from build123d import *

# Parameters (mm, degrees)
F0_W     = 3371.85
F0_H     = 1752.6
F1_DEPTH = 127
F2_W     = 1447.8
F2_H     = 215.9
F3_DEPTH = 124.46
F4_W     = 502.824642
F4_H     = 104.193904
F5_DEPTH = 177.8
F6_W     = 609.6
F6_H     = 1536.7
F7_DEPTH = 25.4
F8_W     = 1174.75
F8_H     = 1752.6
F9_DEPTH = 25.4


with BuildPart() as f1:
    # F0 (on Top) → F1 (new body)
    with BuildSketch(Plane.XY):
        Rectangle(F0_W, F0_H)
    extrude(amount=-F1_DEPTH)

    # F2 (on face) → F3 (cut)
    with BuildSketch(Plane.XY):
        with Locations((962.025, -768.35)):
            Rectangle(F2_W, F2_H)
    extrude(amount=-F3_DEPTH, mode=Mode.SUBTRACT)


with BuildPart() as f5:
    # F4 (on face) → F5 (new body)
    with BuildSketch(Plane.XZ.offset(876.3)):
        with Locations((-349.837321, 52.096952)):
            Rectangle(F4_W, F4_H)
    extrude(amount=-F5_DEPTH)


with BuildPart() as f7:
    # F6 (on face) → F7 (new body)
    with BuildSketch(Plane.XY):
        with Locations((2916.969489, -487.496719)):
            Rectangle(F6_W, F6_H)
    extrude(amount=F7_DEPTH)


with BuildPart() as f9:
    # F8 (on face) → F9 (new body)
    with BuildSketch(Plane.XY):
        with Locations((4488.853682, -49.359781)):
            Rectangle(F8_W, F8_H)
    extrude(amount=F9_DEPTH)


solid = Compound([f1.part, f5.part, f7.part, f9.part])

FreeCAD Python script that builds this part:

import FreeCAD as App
import Part
import Sketcher

V = App.Vector
Q = App.Units.Quantity


def add_polygon(sketch, points):
    """Adds a closed chain of lines whose ends are joined by coincident constraints."""
    first, n = sketch.GeometryCount, len(points)
    for a, b in zip(points, points[1:] + points[:1]):
        sketch.addGeometry(Part.LineSegment(App.Vector(*a, 0), App.Vector(*b, 0)), False)
    for i in range(n):
        sketch.addConstraint(Sketcher.Constraint("Coincident", first + i, 2, first + (i + 1) % n, 1))

doc = App.newDocument("Part")
body = doc.addObject("PartDesign::Body", "Body")

sketch1 = doc.addObject("Sketcher::SketchObject", "Sketch")
body.addObject(sketch1)
sketch1.AttachmentSupport = (doc.XY_Plane, [""])
sketch1.MapMode = "FlatFace"
add_polygon(sketch1, [(-1686, 876), (-1686, -876), (1686, -876), (1686, 876)])
sketch1.addConstraint([
    Sketcher.Constraint("Vertical", 0),
    Sketcher.Constraint("Horizontal", 1),
    Sketcher.Constraint("Vertical", 2),
    Sketcher.Constraint("Horizontal", 3),
    Sketcher.Constraint("Symmetric", 0, 2, 2, 2, -1, 1),
    Sketcher.Constraint("DistanceY", 0, 2, 0, 1, Q("69 in")),
    Sketcher.Constraint("DistanceX", 1, 1, 1, 2, Q("132.75 in")),
])
pad1 = doc.addObject("PartDesign::Pad", "Pad")
body.addObject(pad1)
pad1.Profile = sketch1
pad1.Length = Q("5 in")
pad1.Reversed = True

sketch2 = doc.addObject("Sketcher::SketchObject", "Sketch001")
body.addObject(sketch2)
sketch2.AttachmentSupport = (doc.XY_Plane, [""])
sketch2.MapMode = "FlatFace"
add_polygon(sketch2, [(238, -660), (238, -876), (1686, -876), (1686, -660)])
sketch2.addConstraint([
    Sketcher.Constraint("Vertical", 0),
    Sketcher.Constraint("Horizontal", 1),
    Sketcher.Constraint("Vertical", 2),
    Sketcher.Constraint("Horizontal", 3),
    Sketcher.Constraint("DistanceX", 1, 1, 1, 2, Q("57 in")),
    Sketcher.Constraint("DistanceY", 0, 2, 0, 1, Q("8.5 in")),
    Sketcher.Constraint("DistanceY", 2, 2, -1, 1, Q("26 in")),
    Sketcher.Constraint("DistanceX", -1, 1, 0, 2, Q("9.375 in")),
])
pocket1 = doc.addObject("PartDesign::Pocket", "Pocket")
body.addObject(pocket1)
pocket1.Profile = sketch2
pocket1.Length = Q("4.9 in")
body2 = doc.addObject("PartDesign::Body", "Body001")

sketch3 = doc.addObject("Sketcher::SketchObject", "Sketch002")
body2.addObject(sketch3)
sketch3.AttachmentSupport = (doc.getObject("XZ_Plane001"), [""])
sketch3.MapMode = "FlatFace"
sketch3.AttachmentOffset = App.Placement(V(0, 0, 34.5 * 25.4), App.Rotation())
add_polygon(sketch3, [(-601, 104), (-601, 0), (-98, 0), (-98, 104)])
sketch3.addConstraint([
    Sketcher.Constraint("Vertical", 0),
    Sketcher.Constraint("Horizontal", 1),
    Sketcher.Constraint("Vertical", 2),
    Sketcher.Constraint("Horizontal", 3),
    Sketcher.Constraint("PointOnObject", 0, 2, -1),
    Sketcher.Constraint("DistanceX", 1, 2, -1, 1, Q("3.875 in")),
    Sketcher.Constraint("DistanceX", 1, 1, 1, 2, 502.824642),
    Sketcher.Constraint("DistanceY", 0, 2, 0, 1, 104.193904),
])
pad2 = doc.addObject("PartDesign::Pad", "Pad001")
body2.addObject(pad2)
pad2.Profile = sketch3
pad2.Length = Q("7 in")
pad2.Reversed = True
body3 = doc.addObject("PartDesign::Body", "Body002")

sketch4 = doc.addObject("Sketcher::SketchObject", "Sketch003")
body3.addObject(sketch4)
sketch4.AttachmentSupport = (doc.getObject("XY_Plane002"), [""])
sketch4.MapMode = "FlatFace"
add_polygon(sketch4, [(2612, 281), (2612, -1256), (3222, -1256), (3222, 281)])
sketch4.addConstraint([
    Sketcher.Constraint("Vertical", 0),
    Sketcher.Constraint("Horizontal", 1),
    Sketcher.Constraint("Vertical", 2),
    Sketcher.Constraint("Horizontal", 3),
    Sketcher.Constraint("DistanceX", 1, 1, 1, 2, Q("24 in")),
    Sketcher.Constraint("DistanceY", 0, 2, 0, 1, Q("60.5 in")),
    Sketcher.Constraint("DistanceX", -1, 1, 0, 2, 2612.169489),
    Sketcher.Constraint("DistanceY", 0, 2, -1, 1, 1255.846719),
])
pad3 = doc.addObject("PartDesign::Pad", "Pad002")
body3.addObject(pad3)
pad3.Profile = sketch4
pad3.Length = Q("1 in")
body4 = doc.addObject("PartDesign::Body", "Body003")

sketch5 = doc.addObject("Sketcher::SketchObject", "Sketch004")
body4.addObject(sketch5)
sketch5.AttachmentSupport = (doc.getObject("XY_Plane003"), [""])
sketch5.MapMode = "FlatFace"
add_polygon(sketch5, [(3901, 827), (3901, -926), (5076, -926), (5076, 827)])
sketch5.addConstraint([
    Sketcher.Constraint("Vertical", 0),
    Sketcher.Constraint("Horizontal", 1),
    Sketcher.Constraint("Vertical", 2),
    Sketcher.Constraint("Horizontal", 3),
    Sketcher.Constraint("DistanceY", 0, 2, 0, 1, Q("69 in")),
    Sketcher.Constraint("DistanceX", 1, 1, 1, 2, Q("46.25 in")),
    Sketcher.Constraint("DistanceX", -1, 1, 0, 2, 3901.478682),
    Sketcher.Constraint("DistanceY", 0, 2, -1, 1, 925.659781),
])
pad4 = doc.addObject("PartDesign::Pad", "Pad003")
body4.addObject(pad4)
pad4.Profile = sketch5
pad4.Length = Q("1 in")

doc.recompute()
